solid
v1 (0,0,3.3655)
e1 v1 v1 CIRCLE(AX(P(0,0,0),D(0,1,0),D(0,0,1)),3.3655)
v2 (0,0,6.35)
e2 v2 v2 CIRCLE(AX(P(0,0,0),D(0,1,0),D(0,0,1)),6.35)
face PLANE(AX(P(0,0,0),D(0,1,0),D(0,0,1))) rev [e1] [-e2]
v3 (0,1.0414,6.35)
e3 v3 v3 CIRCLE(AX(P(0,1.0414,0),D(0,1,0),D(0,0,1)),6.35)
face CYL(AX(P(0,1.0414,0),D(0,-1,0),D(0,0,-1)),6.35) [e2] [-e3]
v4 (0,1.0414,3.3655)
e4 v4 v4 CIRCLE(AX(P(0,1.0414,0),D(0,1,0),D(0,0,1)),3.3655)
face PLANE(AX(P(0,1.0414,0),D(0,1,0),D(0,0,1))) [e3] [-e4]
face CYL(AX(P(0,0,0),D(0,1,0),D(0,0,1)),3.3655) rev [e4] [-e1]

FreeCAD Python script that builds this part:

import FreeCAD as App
import Part
import Sketcher
from FreeCAD import Vector
Q = App.Units.Quantity

doc = App.newDocument("Part")
body = doc.addObject("PartDesign::Body", "Body")

# Sketch on XZ plane
sketch1 = body.newObject("Sketcher::SketchObject", "Sketch")
sketch1.AttachmentSupport = (doc.getObject("XZ_Plane"), [""])
sketch1.MapMode = "FlatFace"
sketch1.addGeometry(Part.Circle(Vector(0, 0, 0), Vector(0, 0, 1), 6.35), False)
sketch1.addConstraint([
    Sketcher.Constraint("Coincident", 0, 3, -1, 1),
    Sketcher.Constraint("Diameter", 0, Q("0.5 in")),
])
pad1 = body.newObject("PartDesign::Pad", "Pad")
pad1.Profile = sketch1
pad1.Length = Q("0.041 in")
pad1.Reversed = True

# Sketch on XZ plane
sketch2 = body.newObject("Sketcher::SketchObject", "Sketch001")
sketch2.AttachmentSupport = (doc.getObject("XZ_Plane"), [""])
sketch2.MapMode = "FlatFace"
sketch2.AttachmentOffset = App.Placement(Vector(0, 0, -0.041 * 25.4), App.Rotation())
sketch2.addGeometry(Part.Circle(Vector(0, 0, 0), Vector(0, 0, 1), 3.3655), False)
sketch2.addConstraint([
    Sketcher.Constraint("Coincident", 0, 3, -1, 1),
    Sketcher.Constraint("Diameter", 0, Q("0.265 in")),
])
pocket1 = body.newObject("PartDesign::Pocket", "Pocket")
pocket1.Profile = sketch2
pocket1.Type = "ThroughAll"
pocket1.Reversed = True

doc.recompute()
